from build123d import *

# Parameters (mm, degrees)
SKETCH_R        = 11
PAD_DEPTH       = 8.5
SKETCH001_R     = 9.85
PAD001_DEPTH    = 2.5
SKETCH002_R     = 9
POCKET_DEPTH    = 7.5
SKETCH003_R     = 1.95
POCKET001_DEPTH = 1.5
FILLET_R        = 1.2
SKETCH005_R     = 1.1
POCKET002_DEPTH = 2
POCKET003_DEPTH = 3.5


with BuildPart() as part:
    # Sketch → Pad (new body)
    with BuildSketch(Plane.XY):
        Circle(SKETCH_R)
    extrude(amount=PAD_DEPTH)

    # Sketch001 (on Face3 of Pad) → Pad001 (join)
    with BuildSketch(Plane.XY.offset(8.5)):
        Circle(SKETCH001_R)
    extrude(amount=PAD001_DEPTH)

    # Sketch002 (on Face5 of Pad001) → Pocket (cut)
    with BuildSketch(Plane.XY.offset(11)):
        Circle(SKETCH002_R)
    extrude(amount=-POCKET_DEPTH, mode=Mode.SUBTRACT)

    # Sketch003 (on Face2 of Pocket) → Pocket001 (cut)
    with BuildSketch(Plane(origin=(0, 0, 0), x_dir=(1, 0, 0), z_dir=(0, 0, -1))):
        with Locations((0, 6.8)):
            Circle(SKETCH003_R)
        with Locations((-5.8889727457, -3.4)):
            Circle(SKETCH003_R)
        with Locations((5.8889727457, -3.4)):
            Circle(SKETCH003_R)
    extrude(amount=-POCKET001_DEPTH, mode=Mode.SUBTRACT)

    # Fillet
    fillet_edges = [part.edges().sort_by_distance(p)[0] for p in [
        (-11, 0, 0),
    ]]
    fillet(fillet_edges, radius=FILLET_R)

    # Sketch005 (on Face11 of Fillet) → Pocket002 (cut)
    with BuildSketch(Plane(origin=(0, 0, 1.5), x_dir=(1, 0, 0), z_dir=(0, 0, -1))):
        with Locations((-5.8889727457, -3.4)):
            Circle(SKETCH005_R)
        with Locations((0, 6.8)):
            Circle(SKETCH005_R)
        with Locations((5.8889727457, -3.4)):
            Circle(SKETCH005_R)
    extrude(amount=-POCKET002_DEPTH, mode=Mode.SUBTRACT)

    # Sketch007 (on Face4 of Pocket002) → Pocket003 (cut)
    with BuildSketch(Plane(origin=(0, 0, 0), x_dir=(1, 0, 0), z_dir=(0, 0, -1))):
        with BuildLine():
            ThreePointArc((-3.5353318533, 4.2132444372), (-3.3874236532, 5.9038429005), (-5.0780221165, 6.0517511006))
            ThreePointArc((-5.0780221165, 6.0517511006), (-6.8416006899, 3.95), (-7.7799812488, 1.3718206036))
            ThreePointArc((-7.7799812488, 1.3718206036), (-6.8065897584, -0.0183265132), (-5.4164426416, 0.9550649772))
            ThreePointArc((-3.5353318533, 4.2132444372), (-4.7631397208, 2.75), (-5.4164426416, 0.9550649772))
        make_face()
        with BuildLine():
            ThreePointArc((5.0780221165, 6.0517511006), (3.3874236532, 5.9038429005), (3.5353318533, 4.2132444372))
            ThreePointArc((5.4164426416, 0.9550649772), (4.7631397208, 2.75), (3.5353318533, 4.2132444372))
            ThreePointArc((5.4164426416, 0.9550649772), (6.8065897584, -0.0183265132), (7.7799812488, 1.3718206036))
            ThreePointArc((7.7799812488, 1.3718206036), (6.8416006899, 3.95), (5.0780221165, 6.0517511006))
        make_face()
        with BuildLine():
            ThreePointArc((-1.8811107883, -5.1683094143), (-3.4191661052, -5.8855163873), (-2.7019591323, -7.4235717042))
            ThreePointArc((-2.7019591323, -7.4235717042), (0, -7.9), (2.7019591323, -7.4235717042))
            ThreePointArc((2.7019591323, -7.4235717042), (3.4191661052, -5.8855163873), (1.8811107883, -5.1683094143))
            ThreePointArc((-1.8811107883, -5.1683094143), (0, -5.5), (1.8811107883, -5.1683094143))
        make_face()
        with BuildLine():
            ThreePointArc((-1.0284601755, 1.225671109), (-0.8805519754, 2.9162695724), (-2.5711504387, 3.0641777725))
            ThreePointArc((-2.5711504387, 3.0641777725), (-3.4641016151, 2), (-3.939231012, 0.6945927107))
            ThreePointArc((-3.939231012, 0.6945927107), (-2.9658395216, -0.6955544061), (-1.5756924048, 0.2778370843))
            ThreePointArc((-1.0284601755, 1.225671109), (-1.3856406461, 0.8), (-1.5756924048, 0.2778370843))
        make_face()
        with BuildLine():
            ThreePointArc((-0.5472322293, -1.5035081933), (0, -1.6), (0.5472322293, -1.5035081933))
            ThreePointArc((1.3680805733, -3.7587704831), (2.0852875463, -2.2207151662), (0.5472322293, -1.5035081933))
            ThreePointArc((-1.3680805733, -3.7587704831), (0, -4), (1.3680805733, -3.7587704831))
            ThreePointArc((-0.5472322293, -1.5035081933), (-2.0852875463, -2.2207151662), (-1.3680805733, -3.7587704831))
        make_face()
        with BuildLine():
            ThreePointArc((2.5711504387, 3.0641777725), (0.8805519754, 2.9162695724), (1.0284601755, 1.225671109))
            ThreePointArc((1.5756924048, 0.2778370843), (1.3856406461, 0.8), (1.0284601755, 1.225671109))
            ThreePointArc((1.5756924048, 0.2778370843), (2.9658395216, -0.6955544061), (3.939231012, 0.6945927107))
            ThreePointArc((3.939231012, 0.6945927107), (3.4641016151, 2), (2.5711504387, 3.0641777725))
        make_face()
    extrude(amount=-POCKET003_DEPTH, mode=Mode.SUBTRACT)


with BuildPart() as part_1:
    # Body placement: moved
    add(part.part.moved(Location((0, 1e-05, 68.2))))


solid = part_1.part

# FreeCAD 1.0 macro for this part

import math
import FreeCAD as App
import Part
import Sketcher
from FreeCAD import Vector


def edges_at(feature, points):
    """Names of the edges that pass closest to the given points."""
    edges = feature.Shape.Edges
    near = lambda p: min(range(len(edges)), key=lambda i: edges[i].distToShape(Part.Vertex(*p))[0])
    return sorted({f"Edge{near(p) + 1}" for p in points})

doc = App.newDocument("Part")
body = doc.addObject("PartDesign::Body", "Body")

# Sketch on XY plane
sketch1 = body.newObject("Sketcher::SketchObject", "Sketch")
sketch1.AttachmentSupport = (doc.getObject("XY_Plane"), [""])
sketch1.MapMode = "FlatFace"
sketch1.addGeometry(Part.Circle(Vector(0, 0, 0), Vector(0, 0, 1), 11), False)
sketch1.addConstraint([
    Sketcher.Constraint("Coincident", 0, 3, -1, 1),
    Sketcher.Constraint("Diameter", 0, 22.0),
])
pad1 = body.newObject("PartDesign::Pad", "Pad")
pad1.Profile = sketch1
pad1.Length = 8.5

# Sketch on XY plane
sketch2 = body.newObject("Sketcher::SketchObject", "Sketch001")
sketch2.AttachmentSupport = (doc.getObject("XY_Plane"), [""])
sketch2.MapMode = "FlatFace"
sketch2.AttachmentOffset = App.Placement(Vector(0, 0, 8.5), App.Rotation())
sketch2.addGeometry(Part.Circle(Vector(0, 0, 0), Vector(0, 0, 1), 10), False)
sketch2.addConstraint([
    Sketcher.Constraint("Coincident", 0, 3, -1, 1),
    Sketcher.Constraint("Diameter", 0, 19.7),
])
pad2 = body.newObject("PartDesign::Pad", "Pad001")
pad2.Profile = sketch2
pad2.Length = 2.5

# Sketch on XY plane
sketch3 = body.newObject("Sketcher::SketchObject", "Sketch002")
sketch3.AttachmentSupport = (doc.getObject("XY_Plane"), [""])
sketch3.MapMode = "FlatFace"
sketch3.AttachmentOffset = App.Placement(Vector(0, 0, 11), App.Rotation())
sketch3.addGeometry(Part.Circle(Vector(0, 0, 0), Vector(0, 0, 1), 9), False)
sketch3.addConstraint([
    Sketcher.Constraint("Coincident", 0, 3, -1, 1),
    Sketcher.Constraint("Diameter", 0, 18.0),
])
pocket1 = body.newObject("PartDesign::Pocket", "Pocket")
pocket1.Profile = sketch3
pocket1.Length = 7.5

# Sketch on XY plane
sketch4 = body.newObject("Sketcher::SketchObject", "Sketch003")
sketch4.AttachmentSupport = (doc.getObject("XY_Plane"), [""])
sketch4.MapMode = "FlatFace"
sketch4.addGeometry([
    Part.Circle(Vector(0, -6.8, 0), Vector(0, 0, 1), 1.9),
    Part.Circle(Vector(-5.9, 3.4, 0), Vector(0, 0, 1), 1.9),
    Part.Circle(Vector(5.9, 3.4, 0), Vector(0, 0, 1), 1.9),
], False)
sketch4.addConstraint([
    Sketcher.Constraint("Equal", 0, 1),
    Sketcher.Constraint("Equal", 1, 2),
    Sketcher.Constraint("Symmetric", 1, 3, 2, 3, -2),
    Sketcher.Constraint("PointOnObject", 0, 3, -2),
    Sketcher.Constraint("Diameter", 0, 3.9),
    Sketcher.Constraint("DistanceY", 0, 3, -1, 1, 6.8),
    Sketcher.Constraint("DistanceY", -1, 1, 1, 3, 3.4),
    Sketcher.Constraint("DistanceX", 1, 3, -1, 1, 5.888973),
])
pocket2 = body.newObject("PartDesign::Pocket", "Pocket001")
pocket2.Profile = sketch4
pocket2.Length = 1.5
pocket2.Reversed = True
doc.recompute()

fillet = body.newObject("PartDesign::Fillet", "Fillet")
fillet.Base = (pocket2, edges_at(pocket2, [(-11, 0, 0)]))
fillet.Radius = 1.2

# Sketch on XY plane
sketch5 = body.newObject("Sketcher::SketchObject", "Sketch004")
sketch5.AttachmentSupport = (doc.getObject("XY_Plane"), [""])
sketch5.MapMode = "FlatFace"
sketch5.AttachmentOffset = App.Placement(Vector(0, 0, 1.5), App.Rotation())
sketch5.addGeometry([
    Part.Circle(Vector(-5.9, 3.4, 0), Vector(0, 0, 1), 1.1),
    Part.Circle(Vector(0, -6.8, 0), Vector(0, 0, 1), 1.1),
    Part.Circle(Vector(5.9, 3.4, 0), Vector(0, 0, 1), 1.1),
], False)
sketch5.addConstraint([
    Sketcher.Constraint("Equal", 0, 1),
    Sketcher.Constraint("Equal", 1, 2),
    Sketcher.Constraint("Symmetric", 0, 3, 2, 3, -2),
    Sketcher.Constraint("PointOnObject", 1, 3, -2),
    Sketcher.Constraint("Diameter", 0, 2.2),
    Sketcher.Constraint("DistanceY", -1, 1, 0, 3, 3.4),
    Sketcher.Constraint("DistanceY", 1, 3, -1, 1, 6.8),
    Sketcher.Constraint("DistanceX", 0, 3, -1, 1, 5.888973),
])
pocket3 = body.newObject("PartDesign::Pocket", "Pocket002")
pocket3.Profile = sketch5
pocket3.Length = 2
pocket3.Reversed = True

# Sketch on XY plane
sketch6 = body.newObject("Sketcher::SketchObject", "Sketch005")
sketch6.AttachmentSupport = (doc.getObject("XY_Plane"), [""])
sketch6.MapMode = "FlatFace"
sketch6.addGeometry([
    Part.ArcOfCircle(Part.Circle(Vector(-4.3, -5.1, 0), Vector(0, 0, 1), 1.2), math.radians(-130), math.radians(50)),  # 0
    Part.ArcOfCircle(Part.Circle(Vector(0, 0, 0), Vector(0, 0, 1), 7.9), math.radians(-170), math.radians(-130)),  # 1
    Part.ArcOfCircle(Part.Circle(Vector(-6.6, -1.2, 0), Vector(0, 0, 1), 1.2), math.radians(10), math.radians(190)),  # 2
    Part.ArcOfCircle(Part.Circle(Vector(0, 0, 0), Vector(0, 0, 1), 5.5), math.radians(-170), math.radians(-130)),  # 3
    Part.ArcOfCircle(Part.Circle(Vector(4.3, -5.1, 0), Vector(0, 0, 1), 1.2), math.radians(130), math.radians(310)),  # 4
    Part.ArcOfCircle(Part.Circle(Vector(0, 0, 0), Vector(0, 0, 1), 5.5), math.radians(-50), math.radians(-10)),  # 5
    Part.ArcOfCircle(Part.Circle(Vector(6.6, -1.2, 0), Vector(0, 0, 1), 1.2), math.radians(-10), math.radians(170)),  # 6
    Part.ArcOfCircle(Part.Circle(Vector(0, 0, 0), Vector(0, 0, 1), 7.9), math.radians(-50), math.radians(-10)),  # 7
    Part.ArcOfCircle(Part.Circle(Vector(-2.3, 6.3, 0), Vector(0, 0, 1), 1.2), math.radians(110), math.radians(290)),  # 8
    Part.ArcOfCircle(Part.Circle(Vector(0, 0, 0), Vector(0, 0, 1), 7.9), math.radians(70), math.radians(110)),  # 9
    Part.ArcOfCircle(Part.Circle(Vector(2.3, 6.3, 0), Vector(0, 0, 1), 1.2), math.radians(-110), math.radians(70)),  # 10
    Part.ArcOfCircle(Part.Circle(Vector(0, 0, 0), Vector(0, 0, 1), 5.5), math.radians(70), math.radians(110)),  # 11
    Part.ArcOfCircle(Part.Circle(Vector(-1.8, -2.1, 0), Vector(0, 0, 1), 1.2), math.radians(-130), math.radians(50)),  # 12
    Part.ArcOfCircle(Part.Circle(Vector(0, 0, 0), Vector(0, 0, 1), 4), math.radians(-170), math.radians(-130)),  # 13
    Part.ArcOfCircle(Part.Circle(Vector(-2.8, -0.5, 0), Vector(0, 0, 1), 1.2), math.radians(10), math.radians(190)),  # 14
    Part.ArcOfCircle(Part.Circle(Vector(0, 0, 0), Vector(0, 0, 1), 1.6), math.radians(-170), math.radians(-130)),  # 15
    Part.ArcOfCircle(Part.Circle(Vector(0, 0, 0), Vector(0, 0, 1), 1.6), math.radians(70), math.radians(110)),  # 16
    Part.ArcOfCircle(Part.Circle(Vector(-1, 2.6, 0), Vector(0, 0, 1), 1.2), math.radians(110), math.radians(290)),  # 17
    Part.ArcOfCircle(Part.Circle(Vector(0, 0, 0), Vector(0, 0, 1), 4), math.radians(70), math.radians(110)),  # 18
    Part.ArcOfCircle(Part.Circle(Vector(1, 2.6, 0), Vector(0, 0, 1), 1.2), math.radians(-110), math.radians(70)),  # 19
    Part.ArcOfCircle(Part.Circle(Vector(1.8, -2.1, 0), Vector(0, 0, 1), 1.2), math.radians(130), math.radians(310)),  # 20
    Part.ArcOfCircle(Part.Circle(Vector(0, 0, 0), Vector(0, 0, 1), 1.6), math.radians(-50), math.radians(-10)),  # 21
    Part.ArcOfCircle(Part.Circle(Vector(2.8, -0.5, 0), Vector(0, 0, 1), 1.2), math.radians(-10), math.radians(170)),  # 22
    Part.ArcOfCircle(Part.Circle(Vector(0, 0, 0), Vector(0, 0, 1), 4), math.radians(-50), math.radians(-10)),  # 23
], False)
sketch6.addConstraint([
    Sketcher.Constraint("Tangent", 0, 1, 1, 2),
    Sketcher.Constraint("Tangent", 1, 1, 2, 2),
    Sketcher.Constraint("Tangent", 2, 1, 3, 1),
    Sketcher.Constraint("Tangent", 3, 2, 0, 2),
    Sketcher.Constraint("Tangent", 4, 1, 5, 1),
    Sketcher.Constraint("Tangent", 5, 2, 6, 2),
    Sketcher.Constraint("Tangent", 6, 1, 7, 2),
    Sketcher.Constraint("Tangent", 7, 1, 4, 2),
    Sketcher.Constraint("Tangent", 8, 1, 9, 2),
    Sketcher.Constraint("Tangent", 9, 1, 10, 2),
    Sketcher.Constraint("Tangent", 10, 1, 11, 1),
    Sketcher.Constraint("Tangent", 11, 2, 8, 2),
    Sketcher.Constraint("Tangent", 12, 1, 13, 2),
    Sketcher.Constraint("Tangent", 13, 1, 14, 2),
    Sketcher.Constraint("Tangent", 14, 1, 15, 1),
    Sketcher.Constraint("Tangent", 15, 2, 12, 2),
    Sketcher.Constraint("Tangent", 16, 2, 17, 2),
    Sketcher.Constraint("Tangent", 17, 1, 18, 2),
    Sketcher.Constraint("Tangent", 18, 1, 19, 2),
    Sketcher.Constraint("Tangent", 19, 1, 16, 1),
    Sketcher.Constraint("Tangent", 20, 1, 21, 1),
    Sketcher.Constraint("Tangent", 21, 2, 22, 2),
    Sketcher.Constraint("Tangent", 22, 1, 23, 2),
    Sketcher.Constraint("Tangent", 23, 1, 20, 2),
    Sketcher.Constraint("Coincident", 1, 3, -1, 1),
    Sketcher.Constraint("Coincident", 3, 3, -1, 1),
    Sketcher.Constraint("Coincident", 5, 3, -1, 1),
    Sketcher.Constraint("Coincident", 7, 3, -1, 1),
    Sketcher.Constraint("Coincident", 9, 3, -1, 1),
    Sketcher.Constraint("Coincident", 11, 3, -1, 1),
    Sketcher.Constraint("Coincident", 13, 3, -1, 1),
    Sketcher.Constraint("Coincident", 15, 3, -1, 1),
    Sketcher.Constraint("Coincident", 16, 3, -1, 1),
    Sketcher.Constraint("Coincident", 18, 3, -1, 1),
    Sketcher.Constraint("Coincident", 21, 3, -1, 1),
    Sketcher.Constraint("Coincident", 23, 3, -1, 1),
    Sketcher.Constraint("Equal", 2, 4),
    Sketcher.Constraint("Equal", 3, 5),
    Sketcher.Constraint("Equal", 6, 8),
    Sketcher.Constraint("Equal", 7, 9),
    Sketcher.Constraint("Equal", 10, 12),
    Sketcher.Constraint("Equal", 15, 16),
    Sketcher.Constraint("Equal", 14, 17),
    Sketcher.Constraint("Equal", 19, 20),
    Sketcher.Constraint("Equal", 16, 21),
    Sketcher.Constraint("Horizontal", 0, 3, 4, 3),
    Sketcher.Constraint("Horizontal", 2, 3, 6, 3),
    Sketcher.Constraint("Horizontal", 8, 3, 10, 3),
    Sketcher.Constraint("Horizontal", 17, 3, 19, 3),
    Sketcher.Constraint("Horizontal", 12, 3, 20, 3),
    Sketcher.Constraint("Horizontal", 14, 3, 22, 3),
    Sketcher.Constraint("Radius", 13, 4.0),
    Sketcher.Constraint("Radius", 0, 1.2),
    Sketcher.Constraint("Radius", 1, 7.9),
    Sketcher.Constraint("DistanceY", 4, 1, 6, 3, 3.049802),
    Sketcher.Constraint("DistanceX", 2, 3, -1, 1, 6.598212),
    Sketcher.Constraint("DistanceY", -1, 1, 8, 3, 6.295941),
    Sketcher.Constraint("DistanceX", 14, 3, -1, 1, 2.757462),
    Sketcher.Constraint("DistanceY", -1, 1, 17, 3, 2.631139),
    Sketcher.Constraint("DistanceX", 12, 1, -1, 1, 2.57115),
])
pocket4 = body.newObject("PartDesign::Pocket", "Pocket003")
pocket4.Profile = sketch6
pocket4.Length = 3.5
pocket4.Reversed = True
body2 = doc.addObject("PartDesign::Body", "Body001")
doc.recompute()

body.Placement = App.Placement(Vector(0, 0.00001, 68.2), App.Rotation(Vector(0, 0, 1), 0))
boolean = body2.newObject("PartDesign::Boolean", "Boolean")
boolean.Type = "Fuse"
boolean.addObjects([body])

doc.recompute()
